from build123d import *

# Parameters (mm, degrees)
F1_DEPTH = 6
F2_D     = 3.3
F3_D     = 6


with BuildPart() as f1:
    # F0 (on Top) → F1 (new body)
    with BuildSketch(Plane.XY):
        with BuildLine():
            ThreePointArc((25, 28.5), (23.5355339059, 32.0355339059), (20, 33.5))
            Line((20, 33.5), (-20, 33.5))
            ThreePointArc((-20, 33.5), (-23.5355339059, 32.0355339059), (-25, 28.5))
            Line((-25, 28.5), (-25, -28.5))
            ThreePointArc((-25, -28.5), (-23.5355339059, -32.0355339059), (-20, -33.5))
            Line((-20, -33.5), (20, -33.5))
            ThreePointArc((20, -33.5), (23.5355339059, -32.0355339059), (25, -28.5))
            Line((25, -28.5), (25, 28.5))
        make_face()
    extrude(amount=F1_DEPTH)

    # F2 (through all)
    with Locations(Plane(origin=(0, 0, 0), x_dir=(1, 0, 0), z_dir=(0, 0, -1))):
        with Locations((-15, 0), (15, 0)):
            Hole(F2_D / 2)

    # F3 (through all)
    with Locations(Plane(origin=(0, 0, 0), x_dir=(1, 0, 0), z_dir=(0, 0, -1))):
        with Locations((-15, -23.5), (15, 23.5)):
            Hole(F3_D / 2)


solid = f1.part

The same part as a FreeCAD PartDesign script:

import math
import FreeCAD as App
import Part
import Sketcher
from FreeCAD import Vector
Q = App.Units.Quantity

doc = App.newDocument("Part")
body = doc.addObject("PartDesign::Body", "Body")

sketch1 = body.newObject("Sketcher::SketchObject", "Sketch")
sketch1.AttachmentSupport = (doc.getObject("XY_Plane"), [""])
sketch1.MapMode = "FlatFace"
sketch1.addGeometry([
    Part.ArcOfCircle(Part.Circle(Vector(20, 28.5, 0), Vector(0, 0, 1), 5), math.radians(0), math.radians(90)),
    Part.LineSegment(Vector(20, 33.5, 0), Vector(-20, 33.5, 0)),
    Part.ArcOfCircle(Part.Circle(Vector(-20, 28.5, 0), Vector(0, 0, 1), 5), math.radians(90), math.radians(180)),
    Part.LineSegment(Vector(-25, 28.5, 0), Vector(-25, -28.5, 0)),
    Part.ArcOfCircle(Part.Circle(Vector(-20, -28.5, 0), Vector(0, 0, 1), 5), math.radians(180), math.radians(270)),
    Part.LineSegment(Vector(-20, -33.5, 0), Vector(20, -33.5, 0)),
    Part.ArcOfCircle(Part.Circle(Vector(20, -28.5, 0), Vector(0, 0, 1), 5), math.radians(-90), math.radians(0)),
    Part.LineSegment(Vector(25, -28.5, 0), Vector(25, 28.5, 0)),
], False)
sketch1.addConstraint([
    Sketcher.Constraint("Tangent", 0, 2, 1, 1),
    Sketcher.Constraint("Tangent", 1, 2, 2, 1),
    Sketcher.Constraint("Tangent", 2, 2, 3, 1),
    Sketcher.Constraint("Tangent", 3, 2, 4, 1),
    Sketcher.Constraint("Tangent", 4, 2, 5, 1),
    Sketcher.Constraint("Tangent", 5, 2, 6, 1),
    Sketcher.Constraint("Tangent", 6, 2, 7, 1),
    Sketcher.Constraint("Tangent", 7, 2, 0, 1),
    Sketcher.Constraint("Horizontal", 1),
    Sketcher.Constraint("Vertical", 3),
    Sketcher.Constraint("Horizontal", 5),
    Sketcher.Constraint("Vertical", 7),
    Sketcher.Constraint("Equal", 0, 2),
    Sketcher.Constraint("Equal", 2, 4),
    Sketcher.Constraint("Equal", 4, 6),
    Sketcher.Constraint("Symmetric", 0, 3, 4, 3, -1, 1),
    Sketcher.Constraint("Radius", 0, Q("5 mm")),
    Sketcher.Constraint("DistanceX", 1, 2, 1, 1, Q("40 mm")),
    Sketcher.Constraint("DistanceY", 3, 2, 3, 1, Q("57 mm")),
])
pad1 = body.newObject("PartDesign::Pad", "Pad")
pad1.Profile = sketch1
pad1.Length = 6

sketch2 = body.newObject("Sketcher::SketchObject", "Sketch001")
sketch2.AttachmentSupport = (doc.getObject("XY_Plane"), [""])
sketch2.MapMode = "FlatFace"
sketch2.addGeometry([
    Part.Circle(Vector(-15, 0, 0), Vector(0, 0, 1), 1.65),
    Part.Circle(Vector(15, 0, 0), Vector(0, 0, 1), 1.65),
], False)
sketch2.addConstraint([
    Sketcher.Constraint("Equal", 0, 1),
    Sketcher.Constraint("Symmetric", 0, 3, 1, 3, -1, 1),
    Sketcher.Constraint("PointOnObject", 0, 3, -1),
    Sketcher.Constraint("Diameter", 0, Q("3.3 mm")),
    Sketcher.Constraint("DistanceX", 0, 3, -1, 1, Q("15 mm")),
])
doc.recompute()
hole = body.newObject("PartDesign::Hole", "Hole")
hole.Profile = sketch2
hole.ThreadType = "None"
hole.Diameter = 3.3
hole.DepthType = "ThroughAll"
hole.Reversed = True

sketch3 = body.newObject("Sketcher::SketchObject", "Sketch002")
sketch3.AttachmentSupport = (doc.getObject("XY_Plane"), [""])
sketch3.MapMode = "FlatFace"
sketch3.addGeometry([
    Part.Circle(Vector(-15, 23.5, 0), Vector(0, 0, 1), 3),
    Part.Circle(Vector(15, -23.5, 0), Vector(0, 0, 1), 3),
], False)
sketch3.addConstraint([
    Sketcher.Constraint("Equal", 0, 1),
    Sketcher.Constraint("Symmetric", 0, 3, 1, 3, -1, 1),
    Sketcher.Constraint("Diameter", 0, Q("6 mm")),
    Sketcher.Constraint("DistanceX", 0, 3, -1, 1, Q("15 mm")),
    Sketcher.Constraint("DistanceY", 1, 3, 0, 3, Q("47 mm")),
])
doc.recompute()
hole2 = body.newObject("PartDesign::Hole", "Hole001")
hole2.Profile = sketch3
hole2.ThreadType = "None"
hole2.Diameter = 6
hole2.DepthType = "ThroughAll"
hole2.Reversed = True

doc.recompute()
